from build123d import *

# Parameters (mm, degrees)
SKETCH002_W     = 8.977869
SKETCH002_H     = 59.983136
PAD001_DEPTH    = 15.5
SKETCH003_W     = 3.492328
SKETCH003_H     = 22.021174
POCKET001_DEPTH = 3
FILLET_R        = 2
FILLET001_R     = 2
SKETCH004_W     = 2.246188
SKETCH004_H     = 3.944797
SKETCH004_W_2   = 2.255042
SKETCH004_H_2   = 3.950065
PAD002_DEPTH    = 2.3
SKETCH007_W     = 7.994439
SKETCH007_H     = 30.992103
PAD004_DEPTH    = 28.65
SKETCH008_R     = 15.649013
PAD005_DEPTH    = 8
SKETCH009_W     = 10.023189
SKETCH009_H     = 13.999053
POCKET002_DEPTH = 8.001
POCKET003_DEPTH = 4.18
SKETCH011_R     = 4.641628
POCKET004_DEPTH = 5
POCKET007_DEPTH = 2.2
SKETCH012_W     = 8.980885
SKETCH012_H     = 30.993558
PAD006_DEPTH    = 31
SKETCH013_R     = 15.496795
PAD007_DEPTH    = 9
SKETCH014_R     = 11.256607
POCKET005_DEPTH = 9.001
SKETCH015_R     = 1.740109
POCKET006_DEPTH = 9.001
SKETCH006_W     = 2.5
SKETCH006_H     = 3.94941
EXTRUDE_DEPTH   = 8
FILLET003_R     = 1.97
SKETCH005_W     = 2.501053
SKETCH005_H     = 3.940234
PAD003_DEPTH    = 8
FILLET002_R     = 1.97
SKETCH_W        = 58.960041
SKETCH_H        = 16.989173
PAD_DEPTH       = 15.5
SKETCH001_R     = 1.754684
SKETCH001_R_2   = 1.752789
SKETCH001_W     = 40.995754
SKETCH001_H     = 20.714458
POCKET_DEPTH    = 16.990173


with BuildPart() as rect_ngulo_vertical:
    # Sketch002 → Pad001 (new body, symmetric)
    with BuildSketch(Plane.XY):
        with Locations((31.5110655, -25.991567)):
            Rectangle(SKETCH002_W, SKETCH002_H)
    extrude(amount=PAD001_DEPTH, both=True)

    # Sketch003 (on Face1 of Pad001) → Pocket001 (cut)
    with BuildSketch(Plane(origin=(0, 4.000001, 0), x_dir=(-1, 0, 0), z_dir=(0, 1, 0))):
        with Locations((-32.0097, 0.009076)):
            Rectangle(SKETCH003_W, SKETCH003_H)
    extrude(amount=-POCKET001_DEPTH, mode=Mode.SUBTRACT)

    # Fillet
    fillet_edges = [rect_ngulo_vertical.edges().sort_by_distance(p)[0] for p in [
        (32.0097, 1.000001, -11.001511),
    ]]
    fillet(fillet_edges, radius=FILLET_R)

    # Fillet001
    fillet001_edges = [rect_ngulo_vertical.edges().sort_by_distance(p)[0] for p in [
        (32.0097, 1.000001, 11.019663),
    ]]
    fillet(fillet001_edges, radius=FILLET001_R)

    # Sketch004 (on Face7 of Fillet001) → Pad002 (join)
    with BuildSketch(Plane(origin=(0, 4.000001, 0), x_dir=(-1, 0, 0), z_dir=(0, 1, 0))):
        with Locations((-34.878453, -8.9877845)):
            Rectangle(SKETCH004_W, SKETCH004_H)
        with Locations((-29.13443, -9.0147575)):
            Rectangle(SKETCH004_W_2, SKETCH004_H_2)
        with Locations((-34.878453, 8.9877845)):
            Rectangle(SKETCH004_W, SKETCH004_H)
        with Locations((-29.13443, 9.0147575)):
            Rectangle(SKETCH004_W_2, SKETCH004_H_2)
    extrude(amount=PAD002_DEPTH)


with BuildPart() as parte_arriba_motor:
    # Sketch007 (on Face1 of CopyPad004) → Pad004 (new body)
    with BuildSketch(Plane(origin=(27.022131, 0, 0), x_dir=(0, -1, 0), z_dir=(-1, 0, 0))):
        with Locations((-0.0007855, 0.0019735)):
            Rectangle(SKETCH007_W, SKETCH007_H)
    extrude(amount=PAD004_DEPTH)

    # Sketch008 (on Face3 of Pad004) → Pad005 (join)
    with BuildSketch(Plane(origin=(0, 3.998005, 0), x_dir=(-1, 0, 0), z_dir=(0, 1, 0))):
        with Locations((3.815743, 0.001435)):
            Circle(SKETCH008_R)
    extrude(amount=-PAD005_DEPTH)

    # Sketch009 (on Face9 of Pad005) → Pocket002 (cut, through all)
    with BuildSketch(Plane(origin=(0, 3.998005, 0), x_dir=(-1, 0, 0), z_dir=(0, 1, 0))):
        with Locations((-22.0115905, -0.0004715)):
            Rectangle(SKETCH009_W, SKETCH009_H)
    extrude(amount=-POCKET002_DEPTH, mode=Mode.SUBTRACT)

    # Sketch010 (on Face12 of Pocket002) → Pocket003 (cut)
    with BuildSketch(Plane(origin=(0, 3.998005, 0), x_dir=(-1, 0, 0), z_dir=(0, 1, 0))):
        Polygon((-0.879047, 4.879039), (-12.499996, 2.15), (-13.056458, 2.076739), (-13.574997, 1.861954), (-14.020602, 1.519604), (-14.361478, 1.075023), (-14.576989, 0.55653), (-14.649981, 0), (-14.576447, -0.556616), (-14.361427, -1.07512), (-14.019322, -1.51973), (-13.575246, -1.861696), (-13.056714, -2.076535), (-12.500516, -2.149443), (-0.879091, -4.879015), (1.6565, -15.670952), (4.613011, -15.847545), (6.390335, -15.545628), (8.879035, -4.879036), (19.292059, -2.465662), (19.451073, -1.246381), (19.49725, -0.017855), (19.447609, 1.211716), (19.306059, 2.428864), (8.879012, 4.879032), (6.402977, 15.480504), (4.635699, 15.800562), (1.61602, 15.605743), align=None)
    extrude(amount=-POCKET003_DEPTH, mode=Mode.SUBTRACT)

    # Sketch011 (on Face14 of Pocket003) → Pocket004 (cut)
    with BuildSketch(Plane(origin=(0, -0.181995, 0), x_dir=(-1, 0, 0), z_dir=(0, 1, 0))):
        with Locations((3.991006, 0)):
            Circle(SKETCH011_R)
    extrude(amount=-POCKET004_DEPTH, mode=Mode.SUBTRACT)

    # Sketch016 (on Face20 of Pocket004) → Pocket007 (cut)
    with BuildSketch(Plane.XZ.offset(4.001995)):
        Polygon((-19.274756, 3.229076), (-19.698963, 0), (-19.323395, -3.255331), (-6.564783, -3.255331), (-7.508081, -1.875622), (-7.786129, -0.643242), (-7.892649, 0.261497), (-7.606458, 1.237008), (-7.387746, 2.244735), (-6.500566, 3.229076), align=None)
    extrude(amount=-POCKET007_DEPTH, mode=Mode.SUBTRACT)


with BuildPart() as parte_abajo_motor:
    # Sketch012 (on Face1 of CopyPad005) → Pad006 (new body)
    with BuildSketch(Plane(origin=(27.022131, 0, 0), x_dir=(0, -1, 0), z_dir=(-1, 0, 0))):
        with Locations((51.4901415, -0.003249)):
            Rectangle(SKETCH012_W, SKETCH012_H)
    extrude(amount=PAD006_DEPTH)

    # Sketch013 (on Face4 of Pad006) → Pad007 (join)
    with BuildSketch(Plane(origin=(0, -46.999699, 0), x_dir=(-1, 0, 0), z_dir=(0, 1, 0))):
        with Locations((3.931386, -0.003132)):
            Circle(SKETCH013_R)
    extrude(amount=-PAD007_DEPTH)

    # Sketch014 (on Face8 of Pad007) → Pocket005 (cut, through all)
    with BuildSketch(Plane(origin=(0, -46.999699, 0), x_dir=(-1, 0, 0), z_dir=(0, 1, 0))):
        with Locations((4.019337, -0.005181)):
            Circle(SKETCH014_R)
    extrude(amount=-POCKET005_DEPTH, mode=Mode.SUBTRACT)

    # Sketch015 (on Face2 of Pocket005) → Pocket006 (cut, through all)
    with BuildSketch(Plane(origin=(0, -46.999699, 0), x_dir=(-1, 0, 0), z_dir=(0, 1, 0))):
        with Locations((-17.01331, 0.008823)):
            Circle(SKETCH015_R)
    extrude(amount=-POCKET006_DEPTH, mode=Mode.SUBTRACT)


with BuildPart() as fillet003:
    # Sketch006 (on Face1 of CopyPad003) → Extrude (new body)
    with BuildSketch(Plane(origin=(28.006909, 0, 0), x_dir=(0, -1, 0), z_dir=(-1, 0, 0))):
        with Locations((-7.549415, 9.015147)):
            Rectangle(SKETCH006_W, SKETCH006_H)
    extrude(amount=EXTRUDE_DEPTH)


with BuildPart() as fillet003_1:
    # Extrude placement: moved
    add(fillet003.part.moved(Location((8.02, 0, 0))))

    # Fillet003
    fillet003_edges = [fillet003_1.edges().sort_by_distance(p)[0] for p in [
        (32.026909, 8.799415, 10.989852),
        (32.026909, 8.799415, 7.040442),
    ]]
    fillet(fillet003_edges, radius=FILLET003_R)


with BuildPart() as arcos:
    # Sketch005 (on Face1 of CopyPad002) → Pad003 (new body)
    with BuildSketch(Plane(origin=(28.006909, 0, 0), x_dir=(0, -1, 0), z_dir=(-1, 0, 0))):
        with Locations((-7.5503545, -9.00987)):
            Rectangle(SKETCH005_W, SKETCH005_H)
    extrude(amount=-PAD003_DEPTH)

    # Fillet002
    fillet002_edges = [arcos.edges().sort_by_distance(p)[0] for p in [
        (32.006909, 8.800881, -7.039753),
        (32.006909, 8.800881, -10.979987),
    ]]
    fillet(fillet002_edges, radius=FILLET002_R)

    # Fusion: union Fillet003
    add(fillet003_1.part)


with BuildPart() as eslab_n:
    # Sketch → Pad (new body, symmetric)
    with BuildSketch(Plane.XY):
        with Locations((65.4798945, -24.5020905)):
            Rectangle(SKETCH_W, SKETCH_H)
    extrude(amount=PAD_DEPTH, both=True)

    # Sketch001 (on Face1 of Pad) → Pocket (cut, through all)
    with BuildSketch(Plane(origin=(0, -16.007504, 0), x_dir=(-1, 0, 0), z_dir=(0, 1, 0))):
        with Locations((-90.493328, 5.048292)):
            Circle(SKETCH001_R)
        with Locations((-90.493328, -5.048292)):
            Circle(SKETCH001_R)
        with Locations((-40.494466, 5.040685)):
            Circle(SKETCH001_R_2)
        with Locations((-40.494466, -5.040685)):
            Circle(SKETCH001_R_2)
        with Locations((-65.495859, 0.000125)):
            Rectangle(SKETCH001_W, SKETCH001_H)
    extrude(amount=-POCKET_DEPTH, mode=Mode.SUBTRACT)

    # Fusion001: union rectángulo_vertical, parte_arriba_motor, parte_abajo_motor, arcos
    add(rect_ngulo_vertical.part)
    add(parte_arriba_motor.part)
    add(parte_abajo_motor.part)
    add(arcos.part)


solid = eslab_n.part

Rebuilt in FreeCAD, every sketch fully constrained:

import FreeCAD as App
import Part
import Sketcher


def edges_at(feature, points):
    """Names of the edges that pass closest to the given points."""
    edges = feature.Shape.Edges
    near = lambda p: min(range(len(edges)), key=lambda i: edges[i].distToShape(Part.Vertex(*p))[0])
    return sorted({f"Edge{near(p) + 1}" for p in points})


def add_polygon(sketch, points):
    """Adds a closed chain of lines whose ends are joined by coincident constraints."""
    first, n = sketch.GeometryCount, len(points)
    for a, b in zip(points, points[1:] + points[:1]):
        sketch.addGeometry(Part.LineSegment(App.Vector(*a, 0), App.Vector(*b, 0)), False)
    for i in range(n):
        sketch.addConstraint(Sketcher.Constraint("Coincident", first + i, 2, first + (i + 1) % n, 1))

doc = App.newDocument("Part")
body = doc.addObject("PartDesign::Body", "Body")

sketch1 = doc.addObject("Sketcher::SketchObject", "Sketch")
body.addObject(sketch1)
sketch1.AttachmentSupport = (doc.XY_Plane, [""])
sketch1.MapMode = "FlatFace"
add_polygon(sketch1, [(27, 4), (27, -56), (36, -56), (36, 4)])
sketch1.addConstraint([
    Sketcher.Constraint("Vertical", 0),
    Sketcher.Constraint("Horizontal", 1),
    Sketcher.Constraint("Vertical", 2),
    Sketcher.Constraint("Horizontal", 3),
    Sketcher.Constraint("DistanceX", -1, 1, 1, 2, 36.0),
    Sketcher.Constraint("DistanceY", -1, 1, 2, 2, 4.000001),
    Sketcher.Constraint("DistanceX", 1, 1, 1, 2, 8.977869),
    Sketcher.Constraint("DistanceY", 0, 2, 0, 1, 59.983136),
])
pad1 = doc.addObject("PartDesign::Pad", "Pad")
body.addObject(pad1)
pad1.Profile = sketch1
pad1.Length = 31
pad1.Midplane = True

sketch2 = doc.addObject("Sketcher::SketchObject", "Sketch001")
body.addObject(sketch2)
sketch2.AttachmentSupport = (doc.XZ_Plane, [""])
sketch2.MapMode = "FlatFace"
sketch2.AttachmentOffset = App.Placement(App.Vector(0, 0, -4.000001), App.Rotation())
add_polygon(sketch2, [(33.8, 11), (33.8, -11), (30.3, -11), (30.3, 11)])
sketch2.addConstraint([
    Sketcher.Constraint("Vertical", 0),
    Sketcher.Constraint("Horizontal", 1),
    Sketcher.Constraint("Vertical", 2),
    Sketcher.Constraint("Horizontal", 3),
    Sketcher.Constraint("DistanceX", 1, 2, 1, 1, 3.492328),
    Sketcher.Constraint("DistanceY", 0, 2, 0, 1, 22.021174),
    Sketcher.Constraint("DistanceY", 0, 2, -1, 1, 11.001511),
    Sketcher.Constraint("DistanceX", -1, 1, 0, 2, 33.755864),
])
pocket1 = doc.addObject("PartDesign::Pocket", "Pocket")
body.addObject(pocket1)
pocket1.Profile = sketch2
pocket1.Length = 3
pocket1.Reversed = True
doc.recompute()

fillet = doc.addObject("PartDesign::Fillet", "Fillet")
body.addObject(fillet)
fillet.Base = (pocket1, edges_at(pocket1, [(32.01, 1, -11.002)]))
fillet.Radius = 2
doc.recompute()

fillet2 = doc.addObject("PartDesign::Fillet", "Fillet001")
body.addObject(fillet2)
fillet2.Base = (fillet, edges_at(fillet, [(32.01, 1, 11.02)]))
fillet2.Radius = 2

sketch3 = doc.addObject("Sketcher::SketchObject", "Sketch002")
body.addObject(sketch3)
sketch3.AttachmentSupport = (doc.XZ_Plane, [""])
sketch3.MapMode = "FlatFace"
sketch3.AttachmentOffset = App.Placement(App.Vector(0, 0, -4.000001), App.Rotation())
add_polygon(sketch3, [(36, -7), (36, -11), (33.8, -11), (33.8, -7)])
add_polygon(sketch3, [(30.3, -7), (30.3, -11), (28, -11), (28, -7)])
add_polygon(sketch3, [(36, 11), (36, 7), (33.8, 7), (33.8, 11)])
add_polygon(sketch3, [(30.3, 11), (30.3, 7), (28, 7), (28, 11)])
sketch3.addConstraint([
    Sketcher.Constraint("Vertical", 0),
    Sketcher.Constraint("Horizontal", 1),
    Sketcher.Constraint("Vertical", 2),
    Sketcher.Constraint("Horizontal", 3),
    Sketcher.Constraint("Vertical", 4),
    Sketcher.Constraint("Horizontal", 5),
    Sketcher.Constraint("Vertical", 6),
    Sketcher.Constraint("Horizontal", 7),
    Sketcher.Constraint("Vertical", 8),
    Sketcher.Constraint("Horizontal", 9),
    Sketcher.Constraint("Vertical", 10),
    Sketcher.Constraint("Horizontal", 11),
    Sketcher.Constraint("Vertical", 12),
    Sketcher.Constraint("Horizontal", 13),
    Sketcher.Constraint("Vertical", 14),
    Sketcher.Constraint("Horizontal", 15),
    Sketcher.Constraint("Symmetric", 3, 2, 8, 2, -1),
    Sketcher.Constraint("Symmetric", 1, 2, 10, 2, -1),
    Sketcher.Constraint("Symmetric", 7, 2, 12, 2, -1),
    Sketcher.Constraint("Symmetric", 5, 2, 14, 2, -1),
    Sketcher.Constraint("DistanceX", 1, 2, 1, 1, 2.246188),
    Sketcher.Constraint("DistanceX", 5, 2, 5, 1, 2.255042),
    Sketcher.Constraint("DistanceY", 0, 2, 0, 1, 3.944797),
    Sketcher.Constraint("DistanceY", 4, 2, 4, 1, 3.950065),
    Sketcher.Constraint("DistanceX", -1, 1, 1, 2, 33.755359),
    Sketcher.Constraint("DistanceX", -1, 1, 4, 2, 30.261951),
    Sketcher.Constraint("DistanceY", 4, 2, -1, 1, 10.98979),
    Sketcher.Constraint("DistanceY", 6, 2, 2, 2, 0.024339),
])
pad2 = doc.addObject("PartDesign::Pad", "Pad001")
body.addObject(pad2)
pad2.Profile = sketch3
pad2.Length = 2.3
pad2.Reversed = True
body2 = doc.addObject("PartDesign::Body", "Body001")

sketch4 = doc.addObject("Sketcher::SketchObject", "Sketch003")
body2.addObject(sketch4)
sketch4.AttachmentSupport = (doc.getObject("YZ_Plane001"), [""])
sketch4.MapMode = "FlatFace"
sketch4.AttachmentOffset = App.Placement(App.Vector(0, 0, 27.022131), App.Rotation())
add_polygon(sketch4, [(4, 15), (4, -15), (-4, -15), (-4, 15)])
sketch4.addConstraint([
    Sketcher.Constraint("Vertical", 0),
    Sketcher.Constraint("Horizontal", 1),
    Sketcher.Constraint("Vertical", 2),
    Sketcher.Constraint("Horizontal", 3),
    Sketcher.Constraint("DistanceX", 1, 2, 1, 1, 7.994439),
    Sketcher.Constraint("DistanceY", 0, 2, 0, 1, 30.992103),
    Sketcher.Constraint("DistanceX", -1, 1, 0, 2, 3.998005),
    Sketcher.Constraint("DistanceY", 0, 2, -1, 1, 15.494078),
])
pad3 = doc.addObject("PartDesign::Pad", "Pad002")
body2.addObject(pad3)
pad3.Profile = sketch4
pad3.Length = 28.65
pad3.Reversed = True

sketch5 = doc.addObject("Sketcher::SketchObject", "Sketch004")
body2.addObject(sketch5)
sketch5.AttachmentSupport = (doc.getObject("XZ_Plane001"), [""])
sketch5.MapMode = "FlatFace"
sketch5.AttachmentOffset = App.Placement(App.Vector(0, 0, -3.998005), App.Rotation())
sketch5.addGeometry(Part.Circle(App.Vector(-4, 0, 0), App.Vector(0, 0, 1), 16), False)
sketch5.addConstraint([
    Sketcher.Constraint("Diameter", 0, 31.298026),
    Sketcher.Constraint("DistanceX", 0, 3, -1, 1, 3.815743),
    Sketcher.Constraint("DistanceY", -1, 1, 0, 3, 0.001435),
])
pad4 = doc.addObject("PartDesign::Pad", "Pad003")
body2.addObject(pad4)
pad4.Profile = sketch5
pad4.Length = 8

sketch6 = doc.addObject("Sketcher::SketchObject", "Sketch005")
body2.addObject(sketch6)
sketch6.AttachmentSupport = (doc.getObject("XZ_Plane001"), [""])
sketch6.MapMode = "FlatFace"
sketch6.AttachmentOffset = App.Placement(App.Vector(0, 0, -3.998005), App.Rotation())
add_polygon(sketch6, [(27, 7), (27, -7), (17, -7), (17, 7)])
sketch6.addConstraint([
    Sketcher.Constraint("Vertical", 0),
    Sketcher.Constraint("Horizontal", 1),
    Sketcher.Constraint("Vertical", 2),
    Sketcher.Constraint("Horizontal", 3),
    Sketcher.Constraint("DistanceX", 1, 2, 1, 1, 10.023189),
    Sketcher.Constraint("DistanceY", 0, 2, 0, 1, 13.999053),
    Sketcher.Constraint("DistanceX", -1, 1, 0, 2, 27.023185),
    Sketcher.Constraint("DistanceY", 0, 2, -1, 1, 6.999998),
])
pocket2 = doc.addObject("PartDesign::Pocket", "Pocket001")
body2.addObject(pocket2)
pocket2.Profile = sketch6
pocket2.Type = "ThroughAll"
pocket2.Reversed = True

sketch7 = doc.addObject("Sketcher::SketchObject", "Sketch006")
body2.addObject(sketch7)
sketch7.AttachmentSupport = (doc.getObject("XZ_Plane001"), [""])
sketch7.MapMode = "FlatFace"
sketch7.AttachmentOffset = App.Placement(App.Vector(0, 0, -3.998005), App.Rotation())
add_polygon(sketch7, [(0.9, 4.9), (12.5, 2.1), (13.1, 2.1), (13.6, 1.9), (14, 1.5), (14.4, 1.1), (14.6, 0.6), (14.6, 0), (14.6, -0.6), (14.4, -1.1), (14, -1.5), (13.6, -1.9), (13.1, -2.1), (12.5, -2.1), (0.9, -4.9), (-1.7, -15.7), (-4.6, -15.8), (-6.4, -15.5), (-8.9, -4.9), (-19.3, -2.5), (-19.5, -1.2), (-19.5, 0), (-19.4, 1.2), (-19.3, 2.4), (-8.9, 4.9), (-6.4, 15.5), (-4.6, 15.8), (-1.6, 15.6)])
sketch7.addConstraint([
    Sketcher.Constraint("PointOnObject", 6, 2, -1),
    Sketcher.Constraint("Equal", 1, 2),
    Sketcher.Constraint("DistanceY", -1, 1, 0, 2, 2.15),
    Sketcher.Constraint("DistanceX", 0, 2, 2, 2, 1.075001),
    Sketcher.Constraint("DistanceX", 22, 2, 18, 2, 0.014),
    Sketcher.Constraint("DistanceX", 14, 2, -1, 1, 1.6565),
    Sketcher.Constraint("DistanceX", 25, 2, -1, 1, 4.635699),
    Sketcher.Constraint("DistanceX", 10, 2, 7, 2, 1.001201),
    Sketcher.Constraint("DistanceX", 12, 2, 11, 2, 0.556198),
    Sketcher.Constraint("DistanceX", 17, 2, 16, 2, 2.4887),
    Sketcher.Constraint("DistanceX", 21, 2, 13, 2, 20.3267),
    Sketcher.Constraint("DistanceY", 17, 2, 22, 2, 7.3079),
    Sketcher.Constraint("Distance", 0, 11.93709),
    Sketcher.Constraint("Distance", 3, 0.561932),
    Sketcher.Constraint("Distance", 8, 0.56132),
    Sketcher.Constraint("Distance", 15, 2.96178),
    Sketcher.Constraint("Distance", 22, 1.225351),
    Sketcher.Constraint("Distance", 23, 10.711052),
    Sketcher.Constraint("Distance", 24, 10.886779),
    Sketcher.Constraint("DistanceY", -1, 1, 1, 2, 2.076739),
    Sketcher.Constraint("DistanceX", -1, 1, 5, 2, 14.576989),
    Sketcher.Constraint("DistanceY", -1, 1, 5, 2, 0.55653),
    Sketcher.Constraint("DistanceX", -1, 1, 6, 2, 14.649981),
    Sketcher.Constraint("DistanceY", 8, 2, -1, 1, 1.07512),
    Sketcher.Constraint("DistanceY", 9, 2, -1, 1, 1.51973),
    Sketcher.Constraint("DistanceX", -1, 1, 13, 2, 0.879091),
    Sketcher.Constraint("DistanceX", 15, 2, -1, 1, 4.613011),
    Sketcher.Constraint("DistanceY", 16, 2, -1, 1, 15.545628),
    Sketcher.Constraint("DistanceX", 18, 2, -1, 1, 19.292059),
    Sketcher.Constraint("DistanceY", 18, 2, -1, 1, 2.465662),
    Sketcher.Constraint("DistanceY", 19, 2, -1, 1, 1.246381),
    Sketcher.Constraint("DistanceX", 20, 2, -1, 1, 19.49725),
    Sketcher.Constraint("DistanceY", -1, 1, 23, 2, 4.879032),
    Sketcher.Constraint("DistanceY", -1, 1, 25, 2, 15.800562),
    Sketcher.Constraint("DistanceX", 26, 2, -1, 1, 1.61602),
    Sketcher.Constraint("DistanceY", -1, 1, 27, 2, 4.879039),
    Sketcher.Constraint("DistanceX", 0, 2, 1, 2, 0.556462),
    Sketcher.Constraint("DistanceY", 3, 2, 2, 2, 0.34235),
    Sketcher.Constraint("DistanceY", 4, 2, 3, 2, 0.444581),
    Sketcher.Constraint("DistanceX", 2, 2, 4, 2, 0.786481),
    Sketcher.Constraint("DistanceX", 4, 2, 5, 2, 0.215511),
    Sketcher.Constraint("DistanceX", 7, 2, 5, 2, 0.000542),
    Sketcher.Constraint("DistanceY", 7, 2, 4, 2, 1.631639),
    Sketcher.Constraint("DistanceX", 9, 2, 6, 2, 0.630659),
    Sketcher.Constraint("DistanceY", 10, 2, 7, 2, 1.30508),
    Sketcher.Constraint("DistanceY", 11, 2, 10, 2, 0.214839),
    Sketcher.Constraint("DistanceX", 11, 2, 9, 2, 0.962608),
    Sketcher.Constraint("DistanceY", 12, 2, 11, 2, 0.072908),
    Sketcher.Constraint("DistanceY", 13, 2, 12, 2, 2.729572),
    Sketcher.Constraint("DistanceY", 14, 2, 12, 2, 13.521509),
    Sketcher.Constraint("DistanceX", 16, 2, 12, 2, 18.890851),
    Sketcher.Constraint("DistanceY", 15, 2, 17, 2, 10.968509),
    Sketcher.Constraint("DistanceX", 19, 2, 17, 2, 10.572038),
    Sketcher.Constraint("DistanceY", 17, 2, 20, 2, 4.861181),
    Sketcher.Constraint("DistanceY", 22, 2, 24, 2, 13.05164),
    Sketcher.Constraint("DistanceY", 26, 2, 25, 2, 0.194819),
])
pocket3 = doc.addObject("PartDesign::Pocket", "Pocket002")
body2.addObject(pocket3)
pocket3.Profile = sketch7
pocket3.Length = 4.18
pocket3.Reversed = True

sketch8 = doc.addObject("Sketcher::SketchObject", "Sketch007")
body2.addObject(sketch8)
sketch8.AttachmentSupport = (doc.getObject("XZ_Plane001"), [""])
sketch8.MapMode = "FlatFace"
sketch8.AttachmentOffset = App.Placement(App.Vector(0, 0, 0.181995), App.Rotation())
sketch8.addGeometry(Part.Circle(App.Vector(-4, 0, 0), App.Vector(0, 0, 1), 4.6), False)
sketch8.addConstraint([
    Sketcher.Constraint("PointOnObject", 0, 3, -1),
    Sketcher.Constraint("Diameter", 0, 9.283256),
    Sketcher.Constraint("DistanceX", 0, 3, -1, 1, 3.991006),
])
pocket4 = doc.addObject("PartDesign::Pocket", "Pocket003")
body2.addObject(pocket4)
pocket4.Profile = sketch8
pocket4.Length = 5
pocket4.Reversed = True

sketch9 = doc.addObject("Sketcher::SketchObject", "Sketch008")
body2.addObject(sketch9)
sketch9.AttachmentSupport = (doc.getObject("XZ_Plane001"), [""])
sketch9.MapMode = "FlatFace"
sketch9.AttachmentOffset = App.Placement(App.Vector(0, 0, 4.001995), App.Rotation())
add_polygon(sketch9, [(-19.3, 3.2), (-19.7, 0), (-19.3, -3.3), (-6.6, -3.3), (-7.5, -1.9), (-7.8, -0.6), (-7.9, 0.3), (-7.6, 1.2), (-7.4, 2.2), (-6.5, 3.2)])
sketch9.addConstraint([
    Sketcher.Constraint("Horizontal", 2),
    Sketcher.Constraint("Horizontal", 9),
    Sketcher.Constraint("PointOnObject", 0, 2, -1),
    Sketcher.Constraint("DistanceX", 9, 2, 9, 1, 12.77419),
    Sketcher.Constraint("Distance", 0, 3.256821),
    Sketcher.Constraint("Distance", 3, 1.671349),
    Sketcher.Constraint("Distance", 5, 0.910988),
    Sketcher.Constraint("DistanceX", 2, 1, 2, 2, 12.758612),
    Sketcher.Constraint("DistanceY", 1, 2, -1, 1, 3.255331),
    Sketcher.Constraint("DistanceX", 3, 2, -1, 1, 7.508081),
    Sketcher.Constraint("DistanceY", 3, 2, -1, 1, 1.875622),
    Sketcher.Constraint("DistanceX", 4, 2, -1, 1, 7.786129),
    Sketcher.Constraint("DistanceY", 4, 2, -1, 1, 0.643242),
    Sketcher.Constraint("DistanceX", 5, 2, -1, 1, 7.892649),
    Sketcher.Constraint("DistanceY", -1, 1, 6, 2, 1.237008),
    Sketcher.Constraint("DistanceX", 0, 2, 2, 2, 13.13418),
    Sketcher.Constraint("DistanceX", 5, 2, 6, 2, 0.286191),
    Sketcher.Constraint("DistanceY", 5, 2, 7, 2, 1.983238),
    Sketcher.Constraint("DistanceX", 7, 2, 8, 2, 0.88718),
    Sketcher.Constraint("DistanceY", 7, 2, 8, 2, 0.984341),
])
pocket5 = doc.addObject("PartDesign::Pocket", "Pocket004")
body2.addObject(pocket5)
pocket5.Profile = sketch9
pocket5.Length = 2.2
body3 = doc.addObject("PartDesign::Body", "Body002")

sketch10 = doc.addObject("Sketcher::SketchObject", "Sketch009")
body3.addObject(sketch10)
sketch10.AttachmentSupport = (doc.getObject("YZ_Plane002"), [""])
sketch10.MapMode = "FlatFace"
sketch10.AttachmentOffset = App.Placement(App.Vector(0, 0, 27.022131), App.Rotation())
add_polygon(sketch10, [(-47, 15), (-47, -16), (-56, -16), (-56, 15)])
sketch10.addConstraint([
    Sketcher.Constraint("Vertical", 0),
    Sketcher.Constraint("Horizontal", 1),
    Sketcher.Constraint("Vertical", 2),
    Sketcher.Constraint("Horizontal", 3),
    Sketcher.Constraint("DistanceY", 0, 2, 0, 1, 30.993558),
    Sketcher.Constraint("DistanceX", 0, 2, -1, 1, 46.999699),
    Sketcher.Constraint("DistanceX", 1, 2, 1, 1, 8.980885),
    Sketcher.Constraint("DistanceY", -1, 1, 2, 2, 15.49353),
])
pad5 = doc.addObject("PartDesign::Pad", "Pad004")
body3.addObject(pad5)
pad5.Profile = sketch10
pad5.Length = 31
pad5.Reversed = True

sketch11 = doc.addObject("Sketcher::SketchObject", "Sketch010")
body3.addObject(sketch11)
sketch11.AttachmentSupport = (doc.getObject("XZ_Plane002"), [""])
sketch11.MapMode = "FlatFace"
sketch11.AttachmentOffset = App.Placement(App.Vector(0, 0, 46.999699), App.Rotation())
sketch11.addGeometry(Part.Circle(App.Vector(-4, 0, 0), App.Vector(0, 0, 1), 15), False)
sketch11.addConstraint([
    Sketcher.Constraint("Diameter", 0, 30.99359),
    Sketcher.Constraint("DistanceY", 0, 3, -1, 1, 0.003132),
    Sketcher.Constraint("DistanceX", 0, 3, -1, 1, 3.931386),
])
pad6 = doc.addObject("PartDesign::Pad", "Pad005")
body3.addObject(pad6)
pad6.Profile = sketch11
pad6.Length = 9

sketch12 = doc.addObject("Sketcher::SketchObject", "Sketch011")
body3.addObject(sketch12)
sketch12.AttachmentSupport = (doc.getObject("XZ_Plane002"), [""])
sketch12.MapMode = "FlatFace"
sketch12.AttachmentOffset = App.Placement(App.Vector(0, 0, 46.999699), App.Rotation())
sketch12.addGeometry(Part.Circle(App.Vector(-4, 0, 0), App.Vector(0, 0, 1), 11), False)
sketch12.addConstraint([
    Sketcher.Constraint("Diameter", 0, 22.513214),
    Sketcher.Constraint("DistanceY", 0, 3, -1, 1, 0.005181),
    Sketcher.Constraint("DistanceX", 0, 3, -1, 1, 4.019337),
])
pocket6 = doc.addObject("PartDesign::Pocket", "Pocket005")
body3.addObject(pocket6)
pocket6.Profile = sketch12
pocket6.Type = "ThroughAll"
pocket6.Reversed = True

sketch13 = doc.addObject("Sketcher::SketchObject", "Sketch012")
body3.addObject(sketch13)
sketch13.AttachmentSupport = (doc.getObject("XZ_Plane002"), [""])
sketch13.MapMode = "FlatFace"
sketch13.AttachmentOffset = App.Placement(App.Vector(0, 0, 46.999699), App.Rotation())
sketch13.addGeometry(Part.Circle(App.Vector(17, 0, 0), App.Vector(0, 0, 1), 1.7), False)
sketch13.addConstraint([
    Sketcher.Constraint("Diameter", 0, 3.480218),
    Sketcher.Constraint("DistanceX", -1, 1, 0, 3, 17.01331),
    Sketcher.Constraint("DistanceY", -1, 1, 0, 3, 0.008823),
])
pocket7 = doc.addObject("PartDesign::Pocket", "Pocket006")
body3.addObject(pocket7)
pocket7.Profile = sketch13
pocket7.Type = "ThroughAll"
pocket7.Reversed = True
body4 = doc.addObject("PartDesign::Body", "Body003")

sketch14 = doc.addObject("Sketcher::SketchObject", "Sketch013")
body4.addObject(sketch14)
sketch14.AttachmentSupport = (doc.getObject("YZ_Plane003"), [""])
sketch14.MapMode = "FlatFace"
sketch14.AttachmentOffset = App.Placement(App.Vector(0, 0, 28.006909), App.Rotation())
add_polygon(sketch14, [(8.8, 11), (8.8, 7), (6.3, 7), (6.3, 11)])
sketch14.addConstraint([
    Sketcher.Constraint("Vertical", 0),
    Sketcher.Constraint("Horizontal", 1),
    Sketcher.Constraint("Vertical", 2),
    Sketcher.Constraint("Horizontal", 3),
    Sketcher.Constraint("DistanceX", 1, 2, 1, 1, 2.5),
    Sketcher.Constraint("DistanceY", 0, 2, 0, 1, 3.94941),
    Sketcher.Constraint("DistanceY", -1, 1, 0, 2, 7.040442),
    Sketcher.Constraint("DistanceX", -1, 1, 0, 2, 8.799415),
])
pad7 = doc.addObject("PartDesign::Pad", "Pad006")
body4.addObject(pad7)
pad7.Profile = sketch14
pad7.Length = 8
pad7.Reversed = True
body5 = doc.addObject("PartDesign::Body", "Body004")
doc.recompute()

body4.Placement = App.Placement(App.Vector(8.02, 0, 0), App.Rotation(App.Vector(0, 0, 1), 0))
boolean = doc.addObject("PartDesign::Boolean", "Boolean")
body5.addObject(boolean)
boolean.Type = "Fuse"
boolean.addObjects([body4])
doc.recompute()

fillet3 = doc.addObject("PartDesign::Fillet", "Fillet002")
body5.addObject(fillet3)
fillet3.Base = (boolean, edges_at(boolean, [(32.027, 8.799, 10.99), (32.027, 8.799, 7.04)]))
fillet3.Radius = 1.97
body6 = doc.addObject("PartDesign::Body", "Body005")
body6.AllowCompound = True

sketch15 = doc.addObject("Sketcher::SketchObject", "Sketch014")
body6.addObject(sketch15)
sketch15.AttachmentSupport = (doc.getObject("YZ_Plane005"), [""])
sketch15.MapMode = "FlatFace"
sketch15.AttachmentOffset = App.Placement(App.Vector(0, 0, 28.006909), App.Rotation())
add_polygon(sketch15, [(8.8, -7), (8.8, -11), (6.3, -11), (6.3, -7)])
sketch15.addConstraint([
    Sketcher.Constraint("Vertical", 0),
    Sketcher.Constraint("Horizontal", 1),
    Sketcher.Constraint("Vertical", 2),
    Sketcher.Constraint("Horizontal", 3),
    Sketcher.Constraint("DistanceX", 1, 2, 1, 1, 2.501053),
    Sketcher.Constraint("DistanceY", 0, 2, 0, 1, 3.940234),
    Sketcher.Constraint("DistanceX", -1, 1, 0, 2, 8.800881),
    Sketcher.Constraint("DistanceY", 0, 2, -1, 1, 10.979987),
])
pad8 = doc.addObject("PartDesign::Pad", "Pad007")
body6.addObject(pad8)
pad8.Profile = sketch15
pad8.Length = 8
doc.recompute()

fillet4 = doc.addObject("PartDesign::Fillet", "Fillet003")
body6.addObject(fillet4)
fillet4.Base = (pad8, edges_at(pad8, [(32.007, 8.801, -7.04), (32.007, 8.801, -10.98)]))
fillet4.Radius = 1.97
doc.recompute()

boolean2 = doc.addObject("PartDesign::Boolean", "Boolean001")
body6.addObject(boolean2)
boolean2.Type = "Fuse"
boolean2.addObjects([body5])
body7 = doc.addObject("PartDesign::Body", "Body006")

sketch16 = doc.addObject("Sketcher::SketchObject", "Sketch015")
body7.addObject(sketch16)
sketch16.AttachmentSupport = (doc.getObject("XY_Plane006"), [""])
sketch16.MapMode = "FlatFace"
add_polygon(sketch16, [(36, -16), (36, -33), (95, -33), (95, -16)])
sketch16.addConstraint([
    Sketcher.Constraint("Vertical", 0),
    Sketcher.Constraint("Horizontal", 1),
    Sketcher.Constraint("Vertical", 2),
    Sketcher.Constraint("Horizontal", 3),
    Sketcher.Constraint("DistanceX", 1, 1, 1, 2, 58.960041),
    Sketcher.Constraint("DistanceY", 0, 2, 0, 1, 16.989173),
    Sketcher.Constraint("DistanceX", -1, 1, 0, 2, 35.999874),
    Sketcher.Constraint("DistanceY", 0, 2, -1, 1, 32.996677),
])
pad9 = doc.addObject("PartDesign::Pad", "Pad008")
body7.addObject(pad9)
pad9.Profile = sketch16
pad9.Length = 31
pad9.Midplane = True

sketch17 = doc.addObject("Sketcher::SketchObject", "Sketch016")
body7.addObject(sketch17)
sketch17.AttachmentSupport = (doc.getObject("XZ_Plane006"), [""])
sketch17.MapMode = "FlatFace"
sketch17.AttachmentOffset = App.Placement(App.Vector(0, 0, 16.007504), App.Rotation())
sketch17.addGeometry(Part.Circle(App.Vector(90.5, 5, 0), App.Vector(0, 0, 1), 1.8), False)
sketch17.addGeometry(Part.Circle(App.Vector(90.5, -5, 0), App.Vector(0, 0, 1), 1.8), False)
sketch17.addGeometry(Part.Circle(App.Vector(40.5, 5, 0), App.Vector(0, 0, 1), 1.8), False)
sketch17.addGeometry(Part.Circle(App.Vector(40.5, -5, 0), App.Vector(0, 0, 1), 1.8), False)
add_polygon(sketch17, [(86, 10.4), (86, -10.4), (45, -10.4), (45, 10.4)])
sketch17.addConstraint([
    Sketcher.Constraint("Vertical", 4),
    Sketcher.Constraint("Horizontal", 5),
    Sketcher.Constraint("Vertical", 6),
    Sketcher.Constraint("Horizontal", 7),
    Sketcher.Constraint("Equal", 0, 1),
    Sketcher.Constraint("Equal", 2, 3),
    Sketcher.Constraint("Symmetric", 0, 3, 1, 3, -1),
    Sketcher.Constraint("Symmetric", 2, 3, 3, 3, -1),
    Sketcher.Constraint("Diameter", 0, 3.509368),
    Sketcher.Constraint("Diameter", 2, 3.505578),
    Sketcher.Constraint("DistanceY", 4, 2, 4, 1, 20.714458),
    Sketcher.Constraint("DistanceX", 5, 2, 5, 1, 40.995754),
    Sketcher.Constraint("DistanceX", -1, 1, 0, 3, 90.493328),
    Sketcher.Constraint("DistanceY", 3, 3, 2, 3, 10.08137),
    Sketcher.Constraint("DistanceY", 4, 2, 1, 3, 5.308812),
    Sketcher.Constraint("DistanceX", 3, 3, 4, 2, 45.49927),
    Sketcher.Constraint("DistanceY", 4, 2, 3, 3, 5.316419),
    Sketcher.Constraint("DistanceX", -1, 1, 2, 3, 40.494466),
])
pocket8 = doc.addObject("PartDesign::Pocket", "Pocket007")
body7.addObject(pocket8)
pocket8.Profile = sketch17
pocket8.Type = "ThroughAll"
pocket8.Reversed = True
doc.recompute()

boolean3 = doc.addObject("PartDesign::Boolean", "Boolean002")
body7.addObject(boolean3)
boolean3.Type = "Fuse"
boolean3.addObjects([body])
doc.recompute()

boolean4 = doc.addObject("PartDesign::Boolean", "Boolean003")
body7.addObject(boolean4)
boolean4.Type = "Fuse"
boolean4.addObjects([body2])
doc.recompute()

boolean5 = doc.addObject("PartDesign::Boolean", "Boolean004")
body7.addObject(boolean5)
boolean5.Type = "Fuse"
boolean5.addObjects([body3])
doc.recompute()

boolean6 = doc.addObject("PartDesign::Boolean", "Boolean005")
body7.addObject(boolean6)
boolean6.Type = "Fuse"
boolean6.addObjects([body6])

doc.recompute()
